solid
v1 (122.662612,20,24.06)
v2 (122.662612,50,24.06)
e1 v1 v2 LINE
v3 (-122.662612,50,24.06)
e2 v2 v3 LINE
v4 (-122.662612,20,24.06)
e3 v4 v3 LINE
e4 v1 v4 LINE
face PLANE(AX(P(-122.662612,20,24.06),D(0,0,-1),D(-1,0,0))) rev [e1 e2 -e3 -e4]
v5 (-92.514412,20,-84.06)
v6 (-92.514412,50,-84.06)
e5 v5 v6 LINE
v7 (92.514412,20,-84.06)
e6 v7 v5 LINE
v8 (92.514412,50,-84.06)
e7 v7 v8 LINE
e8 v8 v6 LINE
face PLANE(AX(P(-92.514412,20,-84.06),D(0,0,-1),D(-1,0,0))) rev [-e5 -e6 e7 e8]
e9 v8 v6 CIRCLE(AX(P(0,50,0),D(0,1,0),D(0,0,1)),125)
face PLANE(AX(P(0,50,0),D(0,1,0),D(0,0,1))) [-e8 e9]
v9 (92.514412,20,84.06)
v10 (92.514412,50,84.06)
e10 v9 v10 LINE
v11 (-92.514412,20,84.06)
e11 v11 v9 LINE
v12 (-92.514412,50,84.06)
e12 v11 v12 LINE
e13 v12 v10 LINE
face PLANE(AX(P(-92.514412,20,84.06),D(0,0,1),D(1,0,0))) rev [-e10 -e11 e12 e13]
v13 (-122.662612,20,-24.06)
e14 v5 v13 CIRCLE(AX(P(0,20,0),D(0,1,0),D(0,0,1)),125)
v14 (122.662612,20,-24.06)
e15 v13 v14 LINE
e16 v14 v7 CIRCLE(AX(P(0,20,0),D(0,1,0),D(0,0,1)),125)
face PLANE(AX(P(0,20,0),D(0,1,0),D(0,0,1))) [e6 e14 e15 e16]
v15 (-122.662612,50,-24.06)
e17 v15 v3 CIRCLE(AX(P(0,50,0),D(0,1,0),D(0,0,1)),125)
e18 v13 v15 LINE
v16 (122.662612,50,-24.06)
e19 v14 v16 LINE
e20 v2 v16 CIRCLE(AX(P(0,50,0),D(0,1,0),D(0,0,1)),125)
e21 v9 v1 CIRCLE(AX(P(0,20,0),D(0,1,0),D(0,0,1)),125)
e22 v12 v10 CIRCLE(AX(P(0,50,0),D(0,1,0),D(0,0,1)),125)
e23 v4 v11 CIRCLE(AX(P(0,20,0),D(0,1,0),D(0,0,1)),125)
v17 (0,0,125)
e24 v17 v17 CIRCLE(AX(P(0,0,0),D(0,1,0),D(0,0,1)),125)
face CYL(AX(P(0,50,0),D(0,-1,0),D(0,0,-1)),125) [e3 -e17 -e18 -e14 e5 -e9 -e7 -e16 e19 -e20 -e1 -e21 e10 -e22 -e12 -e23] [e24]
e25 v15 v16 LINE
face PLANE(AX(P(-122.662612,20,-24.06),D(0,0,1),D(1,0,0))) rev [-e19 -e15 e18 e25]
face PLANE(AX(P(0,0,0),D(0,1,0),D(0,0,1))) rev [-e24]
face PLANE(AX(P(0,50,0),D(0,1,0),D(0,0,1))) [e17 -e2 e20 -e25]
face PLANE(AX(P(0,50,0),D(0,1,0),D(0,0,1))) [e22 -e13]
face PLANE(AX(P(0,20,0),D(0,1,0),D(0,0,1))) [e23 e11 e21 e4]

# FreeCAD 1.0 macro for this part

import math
import FreeCAD as App
import Part
import Sketcher
from FreeCAD import Vector
Q = App.Units.Quantity

doc = App.newDocument("Part")
body = doc.addObject("PartDesign::Body", "Body")

sketch1 = body.newObject("Sketcher::SketchObject", "Sketch")
sketch1.AttachmentSupport = (doc.getObject("XZ_Plane"), [""])
sketch1.MapMode = "FlatFace"
sketch1.addGeometry(Part.Circle(Vector(0, 0, 0), Vector(0, 0, 1), 125), False)
sketch1.addConstraint([
    Sketcher.Constraint("Coincident", 0, 3, -1, 1),
    Sketcher.Constraint("Diameter", 0, Q("250 mm")),
])
pad1 = body.newObject("PartDesign::Pad", "Pad")
pad1.Profile = sketch1
pad1.Length = 50
pad1.Reversed = True

sketch2 = body.newObject("Sketcher::SketchObject", "Sketch001")
sketch2.AttachmentSupport = (doc.getObject("XZ_Plane"), [""])
sketch2.MapMode = "FlatFace"
sketch2.AttachmentOffset = App.Placement(Vector(0, 0, -20), App.Rotation())
sketch2.addGeometry([
    Part.LineSegment(Vector(-123, -24, 0), Vector(123, -24, 0)),
    Part.ArcOfCircle(Part.Circle(Vector(0, 0, 0), Vector(0, 0, 1), 125), math.radians(-42), math.radians(-11)),
    Part.LineSegment(Vector(93, -84, 0), Vector(-93, -84, 0)),
    Part.ArcOfCircle(Part.Circle(Vector(0, 0, 0), Vector(0, 0, 1), 125), math.radians(-169), math.radians(-138)),
    Part.LineSegment(Vector(123, 24, 0), Vector(-123, 24, 0)),
    Part.ArcOfCircle(Part.Circle(Vector(0, 0, 0), Vector(0, 0, 1), 125), math.radians(138), math.radians(169)),
    Part.LineSegment(Vector(-93, 84, 0), Vector(93, 84, 0)),
    Part.ArcOfCircle(Part.Circle(Vector(0, 0, 0), Vector(0, 0, 1), 125), math.radians(11), math.radians(42)),
], False)
sketch2.addConstraint([
    Sketcher.Constraint("Coincident", 0, 2, 1, 2),
    Sketcher.Constraint("Coincident", 1, 1, 2, 1),
    Sketcher.Constraint("Coincident", 2, 2, 3, 2),
    Sketcher.Constraint("Coincident", 3, 1, 0, 1),
    Sketcher.Constraint("Coincident", 4, 2, 5, 2),
    Sketcher.Constraint("Coincident", 5, 1, 6, 1),
    Sketcher.Constraint("Coincident", 6, 2, 7, 2),
    Sketcher.Constraint("Coincident", 7, 1, 4, 1),
    Sketcher.Constraint("Horizontal", 0),
    Sketcher.Constraint("Horizontal", 2),
    Sketcher.Constraint("Horizontal", 4),
    Sketcher.Constraint("Horizontal", 6),
    Sketcher.Constraint("Coincident", 1, 3, -1, 1),
    Sketcher.Constraint("Coincident", 3, 3, -1, 1),
    Sketcher.Constraint("Coincident", 5, 3, -1, 1),
    Sketcher.Constraint("Coincident", 7, 3, -1, 1),
    Sketcher.Constraint("Equal", 1, 3),
    Sketcher.Constraint("Equal", 3, 5),
    Sketcher.Constraint("Equal", 5, 7),
    Sketcher.Constraint("Vertical", 3, 1, 4, 2),
    Sketcher.Constraint("Vertical", 2, 2, 5, 1),
    Sketcher.Constraint("Radius", 1, Q("125 mm")),
    Sketcher.Constraint("DistanceY", 1, 1, 0, 2, Q("60 mm")),
    Sketcher.Constraint("DistanceY", 0, 2, -1, 1, Q("24.06 mm")),
])
pocket1 = body.newObject("PartDesign::Pocket", "Pocket")
pocket1.Profile = sketch2
pocket1.Length = 30

doc.recompute()
